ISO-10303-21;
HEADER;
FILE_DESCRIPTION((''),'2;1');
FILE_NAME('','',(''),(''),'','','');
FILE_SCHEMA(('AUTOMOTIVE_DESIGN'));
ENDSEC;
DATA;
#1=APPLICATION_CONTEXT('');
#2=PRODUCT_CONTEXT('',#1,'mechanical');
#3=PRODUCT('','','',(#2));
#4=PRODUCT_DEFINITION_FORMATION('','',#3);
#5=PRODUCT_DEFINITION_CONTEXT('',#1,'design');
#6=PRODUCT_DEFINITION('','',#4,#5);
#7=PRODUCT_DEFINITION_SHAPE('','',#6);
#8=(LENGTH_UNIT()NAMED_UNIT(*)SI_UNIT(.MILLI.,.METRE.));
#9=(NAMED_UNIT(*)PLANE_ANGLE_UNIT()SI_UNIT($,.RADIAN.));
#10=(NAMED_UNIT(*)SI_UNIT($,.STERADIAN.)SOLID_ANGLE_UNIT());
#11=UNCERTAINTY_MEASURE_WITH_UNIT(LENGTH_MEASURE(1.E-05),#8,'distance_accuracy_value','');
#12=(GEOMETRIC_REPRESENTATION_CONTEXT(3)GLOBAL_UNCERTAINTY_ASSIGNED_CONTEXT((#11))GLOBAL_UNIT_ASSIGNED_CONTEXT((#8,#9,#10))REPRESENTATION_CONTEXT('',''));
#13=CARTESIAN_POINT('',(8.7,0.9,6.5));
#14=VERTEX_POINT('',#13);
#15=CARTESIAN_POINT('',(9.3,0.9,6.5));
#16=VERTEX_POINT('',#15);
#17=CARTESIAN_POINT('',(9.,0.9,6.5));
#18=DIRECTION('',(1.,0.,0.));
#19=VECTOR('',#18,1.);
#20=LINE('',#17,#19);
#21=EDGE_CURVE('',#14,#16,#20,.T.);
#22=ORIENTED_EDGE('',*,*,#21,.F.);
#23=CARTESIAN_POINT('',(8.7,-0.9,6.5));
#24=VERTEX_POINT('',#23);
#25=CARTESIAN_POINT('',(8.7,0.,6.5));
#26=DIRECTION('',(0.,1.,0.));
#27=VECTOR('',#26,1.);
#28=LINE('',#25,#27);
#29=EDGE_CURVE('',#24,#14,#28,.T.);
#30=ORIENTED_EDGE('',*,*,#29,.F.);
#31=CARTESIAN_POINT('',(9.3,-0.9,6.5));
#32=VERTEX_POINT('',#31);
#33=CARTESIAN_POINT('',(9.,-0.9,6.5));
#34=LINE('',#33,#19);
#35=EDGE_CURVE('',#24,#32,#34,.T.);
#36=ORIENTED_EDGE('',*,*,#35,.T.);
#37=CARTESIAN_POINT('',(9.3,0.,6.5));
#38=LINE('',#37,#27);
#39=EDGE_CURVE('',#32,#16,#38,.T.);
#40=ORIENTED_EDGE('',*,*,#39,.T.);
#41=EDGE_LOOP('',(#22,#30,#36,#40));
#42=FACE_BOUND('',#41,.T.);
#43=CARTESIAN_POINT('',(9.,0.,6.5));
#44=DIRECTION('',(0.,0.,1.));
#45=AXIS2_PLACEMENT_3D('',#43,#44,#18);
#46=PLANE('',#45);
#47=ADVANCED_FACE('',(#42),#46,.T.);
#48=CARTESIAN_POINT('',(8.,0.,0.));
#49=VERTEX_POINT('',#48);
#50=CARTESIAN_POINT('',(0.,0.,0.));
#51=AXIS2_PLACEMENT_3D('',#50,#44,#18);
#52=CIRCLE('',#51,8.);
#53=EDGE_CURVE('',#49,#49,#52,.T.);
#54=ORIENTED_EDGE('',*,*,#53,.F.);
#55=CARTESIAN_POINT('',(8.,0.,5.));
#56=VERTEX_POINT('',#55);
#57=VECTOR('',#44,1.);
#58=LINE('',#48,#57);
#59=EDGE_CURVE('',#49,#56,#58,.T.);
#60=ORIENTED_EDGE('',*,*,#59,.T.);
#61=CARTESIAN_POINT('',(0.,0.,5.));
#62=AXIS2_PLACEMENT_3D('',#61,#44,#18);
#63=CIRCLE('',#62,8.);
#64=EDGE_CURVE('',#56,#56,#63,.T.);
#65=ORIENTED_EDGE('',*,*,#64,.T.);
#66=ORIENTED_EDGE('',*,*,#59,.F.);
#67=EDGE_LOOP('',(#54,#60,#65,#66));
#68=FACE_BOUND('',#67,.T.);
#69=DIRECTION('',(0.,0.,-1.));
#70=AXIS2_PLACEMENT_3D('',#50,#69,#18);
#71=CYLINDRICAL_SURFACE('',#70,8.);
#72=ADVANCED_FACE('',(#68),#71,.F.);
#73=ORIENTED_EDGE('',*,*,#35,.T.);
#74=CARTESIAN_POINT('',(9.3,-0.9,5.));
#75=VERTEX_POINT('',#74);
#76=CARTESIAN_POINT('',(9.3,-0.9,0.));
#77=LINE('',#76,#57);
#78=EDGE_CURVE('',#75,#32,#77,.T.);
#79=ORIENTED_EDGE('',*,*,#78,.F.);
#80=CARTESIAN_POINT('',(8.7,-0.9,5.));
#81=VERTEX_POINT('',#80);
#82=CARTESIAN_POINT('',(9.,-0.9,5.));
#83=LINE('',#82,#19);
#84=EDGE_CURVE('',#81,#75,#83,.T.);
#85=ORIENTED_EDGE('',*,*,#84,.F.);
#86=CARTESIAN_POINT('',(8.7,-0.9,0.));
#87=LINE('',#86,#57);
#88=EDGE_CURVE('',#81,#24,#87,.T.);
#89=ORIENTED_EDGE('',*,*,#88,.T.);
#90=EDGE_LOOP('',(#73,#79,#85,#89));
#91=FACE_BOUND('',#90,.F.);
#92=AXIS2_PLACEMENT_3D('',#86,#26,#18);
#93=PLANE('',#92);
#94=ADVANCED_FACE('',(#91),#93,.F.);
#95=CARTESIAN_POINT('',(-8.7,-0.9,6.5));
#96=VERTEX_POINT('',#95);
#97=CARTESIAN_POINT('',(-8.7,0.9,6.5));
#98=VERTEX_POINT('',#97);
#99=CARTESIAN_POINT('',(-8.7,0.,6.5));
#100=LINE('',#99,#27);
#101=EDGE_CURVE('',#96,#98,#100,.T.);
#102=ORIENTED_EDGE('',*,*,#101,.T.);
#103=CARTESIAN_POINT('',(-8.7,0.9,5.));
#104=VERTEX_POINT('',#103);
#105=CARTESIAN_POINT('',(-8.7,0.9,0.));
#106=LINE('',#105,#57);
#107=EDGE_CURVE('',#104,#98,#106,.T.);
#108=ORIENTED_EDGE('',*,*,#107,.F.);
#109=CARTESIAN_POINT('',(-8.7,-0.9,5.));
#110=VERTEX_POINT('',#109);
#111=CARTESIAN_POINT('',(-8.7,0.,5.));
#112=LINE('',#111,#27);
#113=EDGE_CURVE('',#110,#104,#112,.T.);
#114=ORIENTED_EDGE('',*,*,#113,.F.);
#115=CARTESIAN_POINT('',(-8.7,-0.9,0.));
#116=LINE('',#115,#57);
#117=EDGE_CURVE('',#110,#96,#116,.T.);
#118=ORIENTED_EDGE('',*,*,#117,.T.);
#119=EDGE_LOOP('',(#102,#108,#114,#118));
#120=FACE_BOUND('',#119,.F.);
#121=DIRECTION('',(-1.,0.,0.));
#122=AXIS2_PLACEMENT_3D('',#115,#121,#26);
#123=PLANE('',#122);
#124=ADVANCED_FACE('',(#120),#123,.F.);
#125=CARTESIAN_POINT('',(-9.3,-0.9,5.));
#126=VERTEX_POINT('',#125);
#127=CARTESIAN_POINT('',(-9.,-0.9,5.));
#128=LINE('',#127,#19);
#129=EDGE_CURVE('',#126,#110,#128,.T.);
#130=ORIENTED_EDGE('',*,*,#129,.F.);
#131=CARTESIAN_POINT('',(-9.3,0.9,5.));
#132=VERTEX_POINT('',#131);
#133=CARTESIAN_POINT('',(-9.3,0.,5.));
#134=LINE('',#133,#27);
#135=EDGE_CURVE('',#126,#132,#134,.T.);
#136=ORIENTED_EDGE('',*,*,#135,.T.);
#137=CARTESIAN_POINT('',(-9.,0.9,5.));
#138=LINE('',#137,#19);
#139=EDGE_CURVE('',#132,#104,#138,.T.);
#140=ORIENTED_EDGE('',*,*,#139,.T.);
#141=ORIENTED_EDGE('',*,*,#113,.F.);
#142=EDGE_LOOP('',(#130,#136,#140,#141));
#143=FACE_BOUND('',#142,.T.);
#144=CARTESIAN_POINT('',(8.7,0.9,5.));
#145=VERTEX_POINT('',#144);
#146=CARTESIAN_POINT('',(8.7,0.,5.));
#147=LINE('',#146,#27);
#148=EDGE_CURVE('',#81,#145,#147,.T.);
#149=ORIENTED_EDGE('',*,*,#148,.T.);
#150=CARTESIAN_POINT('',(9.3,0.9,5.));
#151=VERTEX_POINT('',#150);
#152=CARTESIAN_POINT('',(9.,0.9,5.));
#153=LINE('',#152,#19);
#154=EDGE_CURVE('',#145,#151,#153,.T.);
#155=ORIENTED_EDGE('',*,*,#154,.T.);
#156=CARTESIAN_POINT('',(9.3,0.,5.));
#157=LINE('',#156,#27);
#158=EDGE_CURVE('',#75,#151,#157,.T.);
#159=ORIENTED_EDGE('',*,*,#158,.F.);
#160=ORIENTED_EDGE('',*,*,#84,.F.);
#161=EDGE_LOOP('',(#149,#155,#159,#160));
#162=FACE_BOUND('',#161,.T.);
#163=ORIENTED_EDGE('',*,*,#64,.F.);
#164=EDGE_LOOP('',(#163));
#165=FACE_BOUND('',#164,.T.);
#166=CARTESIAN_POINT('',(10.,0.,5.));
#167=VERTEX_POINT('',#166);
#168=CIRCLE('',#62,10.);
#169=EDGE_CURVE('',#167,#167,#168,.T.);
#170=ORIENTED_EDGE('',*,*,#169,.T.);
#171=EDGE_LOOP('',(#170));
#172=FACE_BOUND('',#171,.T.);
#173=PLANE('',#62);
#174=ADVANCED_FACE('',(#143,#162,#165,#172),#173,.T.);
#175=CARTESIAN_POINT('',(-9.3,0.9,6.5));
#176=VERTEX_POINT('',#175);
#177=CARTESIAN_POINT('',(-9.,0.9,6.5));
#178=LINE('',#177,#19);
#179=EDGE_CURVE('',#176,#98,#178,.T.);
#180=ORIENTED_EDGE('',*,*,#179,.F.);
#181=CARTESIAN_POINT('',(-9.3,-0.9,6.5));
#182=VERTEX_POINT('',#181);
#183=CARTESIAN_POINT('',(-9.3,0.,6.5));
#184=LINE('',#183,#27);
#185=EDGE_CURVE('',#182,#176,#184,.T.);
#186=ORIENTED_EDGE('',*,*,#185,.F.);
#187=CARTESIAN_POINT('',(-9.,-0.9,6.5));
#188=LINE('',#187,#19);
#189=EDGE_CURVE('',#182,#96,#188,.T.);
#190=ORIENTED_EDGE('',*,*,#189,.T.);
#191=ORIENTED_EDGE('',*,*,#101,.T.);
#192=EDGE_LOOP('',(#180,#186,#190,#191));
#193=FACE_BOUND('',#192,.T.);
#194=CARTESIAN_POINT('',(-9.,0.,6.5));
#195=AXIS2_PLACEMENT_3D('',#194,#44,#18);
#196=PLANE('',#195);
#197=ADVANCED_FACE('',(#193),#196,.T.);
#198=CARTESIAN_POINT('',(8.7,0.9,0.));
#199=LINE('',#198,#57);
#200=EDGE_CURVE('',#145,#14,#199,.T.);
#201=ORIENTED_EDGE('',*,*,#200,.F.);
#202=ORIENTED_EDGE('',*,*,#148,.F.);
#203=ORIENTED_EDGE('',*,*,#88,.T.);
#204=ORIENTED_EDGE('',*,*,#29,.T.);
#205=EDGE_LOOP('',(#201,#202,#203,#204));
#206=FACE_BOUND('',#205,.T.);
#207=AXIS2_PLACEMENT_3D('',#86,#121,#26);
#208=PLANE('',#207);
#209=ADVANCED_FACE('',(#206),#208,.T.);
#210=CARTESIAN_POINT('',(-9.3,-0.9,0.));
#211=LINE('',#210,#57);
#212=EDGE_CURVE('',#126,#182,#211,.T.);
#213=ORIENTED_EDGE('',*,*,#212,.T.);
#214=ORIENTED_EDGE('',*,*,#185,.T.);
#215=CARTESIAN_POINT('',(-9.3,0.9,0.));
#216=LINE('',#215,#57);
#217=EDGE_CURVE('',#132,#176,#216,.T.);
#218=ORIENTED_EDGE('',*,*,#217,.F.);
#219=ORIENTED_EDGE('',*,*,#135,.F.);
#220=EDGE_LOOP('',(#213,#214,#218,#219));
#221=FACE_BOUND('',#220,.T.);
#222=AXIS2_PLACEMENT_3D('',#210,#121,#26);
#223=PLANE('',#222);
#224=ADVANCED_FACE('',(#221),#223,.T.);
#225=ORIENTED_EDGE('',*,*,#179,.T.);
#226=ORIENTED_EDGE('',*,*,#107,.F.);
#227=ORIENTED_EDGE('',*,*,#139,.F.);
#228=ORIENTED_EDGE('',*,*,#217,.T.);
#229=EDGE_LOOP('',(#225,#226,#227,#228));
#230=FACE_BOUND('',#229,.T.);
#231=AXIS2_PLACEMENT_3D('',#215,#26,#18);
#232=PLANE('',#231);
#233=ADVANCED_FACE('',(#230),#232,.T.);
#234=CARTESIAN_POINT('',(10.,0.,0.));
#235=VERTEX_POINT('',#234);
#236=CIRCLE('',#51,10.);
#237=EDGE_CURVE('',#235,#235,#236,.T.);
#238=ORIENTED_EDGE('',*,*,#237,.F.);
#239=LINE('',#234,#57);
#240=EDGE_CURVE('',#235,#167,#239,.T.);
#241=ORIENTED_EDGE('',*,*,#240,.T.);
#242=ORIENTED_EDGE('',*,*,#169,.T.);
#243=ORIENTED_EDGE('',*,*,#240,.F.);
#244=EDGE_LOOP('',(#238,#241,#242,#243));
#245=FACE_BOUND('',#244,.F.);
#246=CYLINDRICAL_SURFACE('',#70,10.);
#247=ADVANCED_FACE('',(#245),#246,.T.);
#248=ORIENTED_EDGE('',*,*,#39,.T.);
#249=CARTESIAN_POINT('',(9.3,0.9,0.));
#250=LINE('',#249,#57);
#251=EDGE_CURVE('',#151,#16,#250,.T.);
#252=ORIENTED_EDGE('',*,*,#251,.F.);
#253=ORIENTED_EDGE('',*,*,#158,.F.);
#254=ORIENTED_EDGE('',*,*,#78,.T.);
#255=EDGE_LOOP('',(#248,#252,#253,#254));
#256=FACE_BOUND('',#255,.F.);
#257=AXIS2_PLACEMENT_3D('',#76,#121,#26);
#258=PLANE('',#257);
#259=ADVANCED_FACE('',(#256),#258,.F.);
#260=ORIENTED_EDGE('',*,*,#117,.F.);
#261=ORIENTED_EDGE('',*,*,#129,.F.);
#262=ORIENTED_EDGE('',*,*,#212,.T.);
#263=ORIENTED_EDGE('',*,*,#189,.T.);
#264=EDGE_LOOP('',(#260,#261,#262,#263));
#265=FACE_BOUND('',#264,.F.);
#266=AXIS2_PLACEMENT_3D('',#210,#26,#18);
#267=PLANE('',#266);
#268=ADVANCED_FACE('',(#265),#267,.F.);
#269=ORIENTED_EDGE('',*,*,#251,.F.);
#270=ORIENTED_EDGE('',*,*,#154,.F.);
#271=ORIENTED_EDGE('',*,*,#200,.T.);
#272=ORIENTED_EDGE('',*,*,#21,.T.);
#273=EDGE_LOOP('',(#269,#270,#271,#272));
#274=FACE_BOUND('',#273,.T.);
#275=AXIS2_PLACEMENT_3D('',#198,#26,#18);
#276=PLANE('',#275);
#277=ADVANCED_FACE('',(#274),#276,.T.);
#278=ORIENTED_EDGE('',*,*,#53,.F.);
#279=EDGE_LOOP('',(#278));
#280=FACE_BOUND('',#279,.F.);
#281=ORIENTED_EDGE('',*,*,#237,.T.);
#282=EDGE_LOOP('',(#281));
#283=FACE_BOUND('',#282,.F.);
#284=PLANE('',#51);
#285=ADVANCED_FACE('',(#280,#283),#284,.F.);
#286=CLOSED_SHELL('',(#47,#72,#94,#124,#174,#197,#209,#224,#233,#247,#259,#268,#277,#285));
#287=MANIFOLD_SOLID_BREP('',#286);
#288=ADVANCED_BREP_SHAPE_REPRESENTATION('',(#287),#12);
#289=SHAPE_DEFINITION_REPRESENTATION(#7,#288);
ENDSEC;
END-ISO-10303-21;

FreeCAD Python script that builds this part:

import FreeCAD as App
import Part
import Sketcher

V = App.Vector
Q = App.Units.Quantity


def add_polygon(sketch, points):
    """Adds a closed chain of lines whose ends are joined by coincident constraints."""
    first, n = sketch.GeometryCount, len(points)
    for a, b in zip(points, points[1:] + points[:1]):
        sketch.addGeometry(Part.LineSegment(App.Vector(*a, 0), App.Vector(*b, 0)), False)
    for i in range(n):
        sketch.addConstraint(Sketcher.Constraint("Coincident", first + i, 2, first + (i + 1) % n, 1))

doc = App.newDocument("Part")
params = doc.addObject("Spreadsheet::Sheet", "Params")
for row, (alias, value) in enumerate([
    ("sketch1_width", "0.6 mm"),
    ("sketch1_height", "1.8 mm"),
    ("pad1_length", "6.5 mm"),
    ("sketch2_width", "0.6 mm"),
    ("sketch2_height", "1.8 mm"),
    ("pad2_length", "6.5 mm"),
    ("sketch3_diameter", "20 mm"),
    ("sketch3_diameter2", "16 mm"),
    ("sketch3_width", "0.6 mm"),
    ("sketch3_height", "1.8 mm"),
    ("pad3_length", "5 mm"),
], start=1):
    params.set(f"A{row}", alias)
    params.set(f"B{row}", "=" + value)
    params.setAlias(f"B{row}", alias)

body = doc.addObject("PartDesign::Body", "Body")

sketch1 = body.newObject("Sketcher::SketchObject", "Sketch")
sketch1.AttachmentSupport = (doc.getObject("XY_Plane"), [""])
sketch1.MapMode = "FlatFace"
add_polygon(sketch1, [(-9.3, 0.9), (-9.3, -0.9), (-8.7, -0.9), (-8.7, 0.9)])
sketch1.addConstraint(Sketcher.Constraint("Vertical", 0))
sketch1.addConstraint(Sketcher.Constraint("Horizontal", 1))
sketch1.addConstraint(Sketcher.Constraint("Vertical", 2))
sketch1.addConstraint(Sketcher.Constraint("Horizontal", 3))
sketch1.addConstraint(Sketcher.Constraint("DistanceX", 1, 1, 1, 2, Q("0.6 mm")))
sketch1.addConstraint(Sketcher.Constraint("DistanceY", 0, 2, 0, 1, Q("1.8 mm")))
sketch1.addConstraint(Sketcher.Constraint("DistanceX", 0, 2, -1, 1, Q("9.3 mm")))
sketch1.addConstraint(Sketcher.Constraint("DistanceY", 0, 2, -1, 1, Q("0.9 mm")))
sketch1.setExpression("Constraints[8]", "Params.sketch1_width")
sketch1.setExpression("Constraints[9]", "Params.sketch1_height")
pad1 = body.newObject("PartDesign::Pad", "Pad")
pad1.Profile = sketch1
pad1.setExpression("Length", "Params.pad1_length")
body2 = doc.addObject("PartDesign::Body", "Body001")

sketch2 = body2.newObject("Sketcher::SketchObject", "Sketch001")
sketch2.AttachmentSupport = (doc.getObject("XY_Plane001"), [""])
sketch2.MapMode = "FlatFace"
add_polygon(sketch2, [(8.7, 0.9), (8.7, -0.9), (9.3, -0.9), (9.3, 0.9)])
sketch2.addConstraint(Sketcher.Constraint("Vertical", 0))
sketch2.addConstraint(Sketcher.Constraint("Horizontal", 1))
sketch2.addConstraint(Sketcher.Constraint("Vertical", 2))
sketch2.addConstraint(Sketcher.Constraint("Horizontal", 3))
sketch2.addConstraint(Sketcher.Constraint("DistanceX", 1, 1, 1, 2, Q("0.6 mm")))
sketch2.addConstraint(Sketcher.Constraint("DistanceY", 0, 2, 0, 1, Q("1.8 mm")))
sketch2.addConstraint(Sketcher.Constraint("DistanceX", -1, 1, 0, 2, Q("8.7 mm")))
sketch2.addConstraint(Sketcher.Constraint("DistanceY", 0, 2, -1, 1, Q("0.9 mm")))
sketch2.setExpression("Constraints[8]", "Params.sketch2_width")
sketch2.setExpression("Constraints[9]", "Params.sketch2_height")
pad2 = body2.newObject("PartDesign::Pad", "Pad001")
pad2.Profile = sketch2
pad2.setExpression("Length", "Params.pad2_length")
body.AllowCompound = True
doc.recompute()

boolean = body.newObject("PartDesign::Boolean", "Boolean")
boolean.Type = "Fuse"
boolean.addObjects([body2])

sketch3 = body.newObject("Sketcher::SketchObject", "Sketch002")
sketch3.AttachmentSupport = (doc.getObject("XY_Plane"), [""])
sketch3.MapMode = "FlatFace"
sketch3.addGeometry(Part.Circle(V(0, 0, 0), V(0, 0, 1), 10), False)
add_polygon(sketch3, [(-8.7, -0.9), (-9.3, -0.9), (-9.3, 0.9), (-8.7, 0.9)])
add_polygon(sketch3, [(9.3, -0.9), (8.7, -0.9), (8.7, 0.9), (9.3, 0.9)])
sketch3.addGeometry(Part.Circle(V(0, 0, 0), V(0, 0, 1), 8), False)
sketch3.addConstraint(Sketcher.Constraint("Horizontal", 1))
sketch3.addConstraint(Sketcher.Constraint("Vertical", 2))
sketch3.addConstraint(Sketcher.Constraint("Horizontal", 3))
sketch3.addConstraint(Sketcher.Constraint("Vertical", 4))
sketch3.addConstraint(Sketcher.Constraint("Horizontal", 5))
sketch3.addConstraint(Sketcher.Constraint("Vertical", 6))
sketch3.addConstraint(Sketcher.Constraint("Horizontal", 7))
sketch3.addConstraint(Sketcher.Constraint("Vertical", 8))
sketch3.addConstraint(Sketcher.Constraint("Coincident", 0, 3, -1, 1))
sketch3.addConstraint(Sketcher.Constraint("Coincident", 9, 3, -1, 1))
sketch3.addConstraint(Sketcher.Constraint("Symmetric", 3, 2, 5, 2, -1, 1))
sketch3.addConstraint(Sketcher.Constraint("Symmetric", 1, 2, 7, 2, -1, 1))
sketch3.addConstraint(Sketcher.Constraint("Horizontal", 4, 2, 5, 2))
sketch3.addConstraint(Sketcher.Constraint("Diameter", 0, Q("20 mm")))
sketch3.addConstraint(Sketcher.Constraint("Diameter", 9, Q("16 mm")))
sketch3.addConstraint(Sketcher.Constraint("DistanceX", 1, 2, 1, 1, Q("0.6 mm")))
sketch3.addConstraint(Sketcher.Constraint("DistanceY", 2, 1, 2, 2, Q("1.8 mm")))
sketch3.addConstraint(Sketcher.Constraint("DistanceX", 1, 2, 5, 2, Q("18 mm")))
sketch3.setExpression("Constraints[21]", "Params.sketch3_diameter")
sketch3.setExpression("Constraints[22]", "Params.sketch3_diameter2")
sketch3.setExpression("Constraints[23]", "Params.sketch3_width")
sketch3.setExpression("Constraints[24]", "Params.sketch3_height")
pad3 = body.newObject("PartDesign::Pad", "Pad002")
pad3.Profile = sketch3
pad3.setExpression("Length", "Params.pad3_length")

doc.recompute()
